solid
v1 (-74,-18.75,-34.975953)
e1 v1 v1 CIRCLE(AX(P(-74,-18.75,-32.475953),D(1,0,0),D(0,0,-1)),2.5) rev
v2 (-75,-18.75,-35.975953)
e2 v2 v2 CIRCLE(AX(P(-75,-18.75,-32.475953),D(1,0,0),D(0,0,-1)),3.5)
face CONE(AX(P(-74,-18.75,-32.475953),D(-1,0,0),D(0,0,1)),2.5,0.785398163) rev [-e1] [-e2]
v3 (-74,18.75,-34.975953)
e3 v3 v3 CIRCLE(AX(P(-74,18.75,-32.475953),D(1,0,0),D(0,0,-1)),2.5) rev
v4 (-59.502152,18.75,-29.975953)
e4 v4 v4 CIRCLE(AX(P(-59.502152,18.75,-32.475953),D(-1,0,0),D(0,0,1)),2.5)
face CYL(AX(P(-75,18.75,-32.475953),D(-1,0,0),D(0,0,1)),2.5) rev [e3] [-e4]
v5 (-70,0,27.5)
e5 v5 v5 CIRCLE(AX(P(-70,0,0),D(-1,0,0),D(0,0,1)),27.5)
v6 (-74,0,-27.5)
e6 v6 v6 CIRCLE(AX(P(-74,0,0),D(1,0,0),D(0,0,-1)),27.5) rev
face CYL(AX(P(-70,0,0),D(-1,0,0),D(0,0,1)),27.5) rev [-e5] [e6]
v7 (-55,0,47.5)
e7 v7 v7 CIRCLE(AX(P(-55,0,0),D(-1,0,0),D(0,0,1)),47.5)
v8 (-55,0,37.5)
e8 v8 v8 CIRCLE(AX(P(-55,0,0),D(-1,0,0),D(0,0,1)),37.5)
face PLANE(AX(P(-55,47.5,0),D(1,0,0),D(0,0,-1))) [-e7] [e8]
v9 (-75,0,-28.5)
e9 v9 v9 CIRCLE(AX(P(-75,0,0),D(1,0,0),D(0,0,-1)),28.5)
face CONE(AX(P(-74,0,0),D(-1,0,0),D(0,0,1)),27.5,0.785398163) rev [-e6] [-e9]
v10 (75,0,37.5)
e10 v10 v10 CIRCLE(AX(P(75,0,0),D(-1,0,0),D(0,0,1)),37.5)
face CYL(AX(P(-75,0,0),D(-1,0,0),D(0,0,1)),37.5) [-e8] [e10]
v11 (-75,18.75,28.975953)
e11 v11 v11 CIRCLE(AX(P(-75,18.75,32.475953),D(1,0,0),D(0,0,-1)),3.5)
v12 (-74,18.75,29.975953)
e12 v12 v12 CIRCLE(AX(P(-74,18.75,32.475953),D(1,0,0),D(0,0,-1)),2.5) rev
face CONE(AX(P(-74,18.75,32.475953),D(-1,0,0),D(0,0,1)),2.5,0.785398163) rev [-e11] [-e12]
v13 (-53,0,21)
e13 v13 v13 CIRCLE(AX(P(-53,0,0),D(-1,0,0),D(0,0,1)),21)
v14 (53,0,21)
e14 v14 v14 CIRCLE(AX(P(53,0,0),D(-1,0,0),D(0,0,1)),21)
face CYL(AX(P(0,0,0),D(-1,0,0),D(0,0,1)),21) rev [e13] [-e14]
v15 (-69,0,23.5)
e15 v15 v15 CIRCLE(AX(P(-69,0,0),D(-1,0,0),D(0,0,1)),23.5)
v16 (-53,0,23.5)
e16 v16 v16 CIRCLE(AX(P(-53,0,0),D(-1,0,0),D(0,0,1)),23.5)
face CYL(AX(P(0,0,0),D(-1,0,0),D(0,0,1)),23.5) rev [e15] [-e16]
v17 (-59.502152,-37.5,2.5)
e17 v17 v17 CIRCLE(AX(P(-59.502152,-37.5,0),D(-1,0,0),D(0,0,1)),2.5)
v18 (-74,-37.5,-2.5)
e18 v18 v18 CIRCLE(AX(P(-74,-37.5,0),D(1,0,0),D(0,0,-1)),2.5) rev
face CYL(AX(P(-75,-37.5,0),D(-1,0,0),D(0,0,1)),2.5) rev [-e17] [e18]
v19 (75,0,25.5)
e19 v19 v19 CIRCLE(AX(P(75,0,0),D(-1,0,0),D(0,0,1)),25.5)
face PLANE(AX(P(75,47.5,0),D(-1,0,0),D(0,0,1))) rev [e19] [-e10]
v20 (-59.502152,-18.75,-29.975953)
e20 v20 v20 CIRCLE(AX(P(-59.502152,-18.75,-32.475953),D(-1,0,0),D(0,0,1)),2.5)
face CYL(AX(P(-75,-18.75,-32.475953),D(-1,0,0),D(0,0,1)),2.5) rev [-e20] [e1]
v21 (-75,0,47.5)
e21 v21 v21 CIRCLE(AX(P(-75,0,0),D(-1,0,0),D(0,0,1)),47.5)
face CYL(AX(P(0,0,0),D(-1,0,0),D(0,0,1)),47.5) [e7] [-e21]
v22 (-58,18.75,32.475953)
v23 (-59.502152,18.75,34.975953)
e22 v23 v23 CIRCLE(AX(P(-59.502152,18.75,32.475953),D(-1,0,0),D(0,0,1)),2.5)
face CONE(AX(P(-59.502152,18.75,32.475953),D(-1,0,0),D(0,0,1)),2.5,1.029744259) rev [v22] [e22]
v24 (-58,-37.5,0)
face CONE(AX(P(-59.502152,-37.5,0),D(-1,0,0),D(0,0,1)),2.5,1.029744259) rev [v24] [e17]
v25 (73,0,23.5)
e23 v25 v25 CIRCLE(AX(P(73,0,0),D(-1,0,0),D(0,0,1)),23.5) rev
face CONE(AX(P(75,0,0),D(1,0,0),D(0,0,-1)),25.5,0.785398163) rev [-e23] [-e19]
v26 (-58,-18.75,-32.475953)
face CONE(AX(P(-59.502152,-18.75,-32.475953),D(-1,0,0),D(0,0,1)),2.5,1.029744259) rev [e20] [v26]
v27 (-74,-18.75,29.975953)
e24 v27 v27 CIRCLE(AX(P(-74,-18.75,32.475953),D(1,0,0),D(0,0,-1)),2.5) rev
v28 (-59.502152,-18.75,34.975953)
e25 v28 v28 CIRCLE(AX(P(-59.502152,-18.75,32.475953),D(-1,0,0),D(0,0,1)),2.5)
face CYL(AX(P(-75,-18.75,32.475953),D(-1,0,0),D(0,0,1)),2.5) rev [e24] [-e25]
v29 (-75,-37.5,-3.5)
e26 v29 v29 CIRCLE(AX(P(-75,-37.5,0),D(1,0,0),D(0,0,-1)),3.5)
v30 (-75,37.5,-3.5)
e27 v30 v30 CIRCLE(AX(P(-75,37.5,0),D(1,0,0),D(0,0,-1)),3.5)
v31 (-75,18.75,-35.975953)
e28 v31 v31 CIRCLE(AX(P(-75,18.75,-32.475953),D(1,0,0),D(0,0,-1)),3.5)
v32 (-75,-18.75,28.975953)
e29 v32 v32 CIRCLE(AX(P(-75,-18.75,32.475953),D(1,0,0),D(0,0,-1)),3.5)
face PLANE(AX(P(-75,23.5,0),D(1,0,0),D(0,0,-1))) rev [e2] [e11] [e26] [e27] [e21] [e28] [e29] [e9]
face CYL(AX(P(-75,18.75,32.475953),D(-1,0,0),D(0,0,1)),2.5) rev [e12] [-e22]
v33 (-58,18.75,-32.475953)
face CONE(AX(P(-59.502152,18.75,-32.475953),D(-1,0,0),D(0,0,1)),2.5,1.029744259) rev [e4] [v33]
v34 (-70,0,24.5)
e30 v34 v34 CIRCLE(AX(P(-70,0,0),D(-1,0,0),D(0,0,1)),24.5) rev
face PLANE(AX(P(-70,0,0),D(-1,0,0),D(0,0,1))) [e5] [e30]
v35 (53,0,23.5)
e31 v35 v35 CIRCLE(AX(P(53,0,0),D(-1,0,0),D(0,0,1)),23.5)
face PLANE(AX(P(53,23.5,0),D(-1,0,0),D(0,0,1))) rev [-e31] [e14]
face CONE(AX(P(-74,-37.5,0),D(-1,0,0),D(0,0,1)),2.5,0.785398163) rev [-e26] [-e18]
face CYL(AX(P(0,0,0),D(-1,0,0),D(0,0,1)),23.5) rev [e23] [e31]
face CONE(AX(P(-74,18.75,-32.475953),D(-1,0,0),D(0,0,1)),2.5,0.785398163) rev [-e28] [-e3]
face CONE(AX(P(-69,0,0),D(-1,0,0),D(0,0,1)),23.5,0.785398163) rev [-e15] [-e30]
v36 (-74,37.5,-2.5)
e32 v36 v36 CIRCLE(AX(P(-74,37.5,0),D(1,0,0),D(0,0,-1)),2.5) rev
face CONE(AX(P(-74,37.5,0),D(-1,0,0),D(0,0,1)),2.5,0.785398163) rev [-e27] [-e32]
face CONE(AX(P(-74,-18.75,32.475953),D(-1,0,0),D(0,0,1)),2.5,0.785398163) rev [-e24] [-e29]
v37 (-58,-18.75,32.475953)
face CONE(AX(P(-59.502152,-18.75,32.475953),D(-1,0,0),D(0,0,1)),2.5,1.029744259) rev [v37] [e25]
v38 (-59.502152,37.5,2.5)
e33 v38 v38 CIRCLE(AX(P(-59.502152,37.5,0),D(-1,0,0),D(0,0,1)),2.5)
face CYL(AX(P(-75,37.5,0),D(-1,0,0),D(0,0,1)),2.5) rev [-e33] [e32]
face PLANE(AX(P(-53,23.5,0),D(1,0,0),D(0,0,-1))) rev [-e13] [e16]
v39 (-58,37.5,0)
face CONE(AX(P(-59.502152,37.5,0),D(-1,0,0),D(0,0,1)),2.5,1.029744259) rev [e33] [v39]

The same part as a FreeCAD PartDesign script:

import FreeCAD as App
import Part
import Sketcher
from FreeCAD import Vector
Q = App.Units.Quantity


def edges_at(feature, points):
    """Names of the edges that pass closest to the given points."""
    edges = feature.Shape.Edges
    near = lambda p: min(range(len(edges)), key=lambda i: edges[i].distToShape(Part.Vertex(*p))[0])
    return sorted({f"Edge{near(p) + 1}" for p in points})

doc = App.newDocument("Part")
body = doc.addObject("PartDesign::Body", "Body")

# Sketch on XY plane
sketch1 = body.newObject("Sketcher::SketchObject", "Sketch")
sketch1.AttachmentSupport = (doc.getObject("XY_Plane"), [""])
sketch1.MapMode = "FlatFace"
sketch1.addGeometry(Part.LineSegment(Vector(-75, 47.5, 0), Vector(-75, 23.5, 0)), False)
sketch1.addGeometry(Part.LineSegment(Vector(-75, 23.5, 0), Vector(-53, 23.5, 0)), False)
sketch1.addGeometry(Part.LineSegment(Vector(-53, 23.5, 0), Vector(-53, 21, 0)), False)
sketch1.addGeometry(Part.LineSegment(Vector(-53, 21, 0), Vector(53, 21, 0)), False)
sketch1.addGeometry(Part.LineSegment(Vector(53, 21, 0), Vector(53, 23.5, 0)), False)
sketch1.addGeometry(Part.LineSegment(Vector(53, 23.5, 0), Vector(75, 23.5, 0)), False)
sketch1.addGeometry(Part.LineSegment(Vector(75, 23.5, 0), Vector(75, 47.5, 0)), False)
sketch1.addGeometry(Part.LineSegment(Vector(75, 47.5, 0), Vector(-75, 47.5, 0)), False)
sketch1.addConstraint(Sketcher.Constraint("Coincident", 0, 2, 1, 1))
sketch1.addConstraint(Sketcher.Constraint("Coincident", 1, 2, 2, 1))
sketch1.addConstraint(Sketcher.Constraint("Coincident", 2, 2, 3, 1))
sketch1.addConstraint(Sketcher.Constraint("Coincident", 3, 2, 4, 1))
sketch1.addConstraint(Sketcher.Constraint("Coincident", 4, 2, 5, 1))
sketch1.addConstraint(Sketcher.Constraint("Coincident", 5, 2, 6, 1))
sketch1.addConstraint(Sketcher.Constraint("Coincident", 6, 2, 7, 1))
sketch1.addConstraint(Sketcher.Constraint("Coincident", 7, 2, 0, 1))
sketch1.addConstraint(Sketcher.Constraint("Vertical", 0))
sketch1.addConstraint(Sketcher.Constraint("Horizontal", 1))
sketch1.addConstraint(Sketcher.Constraint("Vertical", 2))
sketch1.addConstraint(Sketcher.Constraint("Horizontal", 3))
sketch1.addConstraint(Sketcher.Constraint("Vertical", 4))
sketch1.addConstraint(Sketcher.Constraint("Horizontal", 5))
sketch1.addConstraint(Sketcher.Constraint("Vertical", 6))
sketch1.addConstraint(Sketcher.Constraint("Horizontal", 7))
sketch1.addConstraint(Sketcher.Constraint("Symmetric", 1, 2, 4, 2, -2))
sketch1.addConstraint(Sketcher.Constraint("Equal", 1, 5))
sketch1.addConstraint(Sketcher.Constraint("DistanceX", 1, 1, 1, 2, Q("22 mm")))
sketch1.addConstraint(Sketcher.Constraint("DistanceX", 3, 1, 3, 2, Q("106 mm")))
sketch1.addConstraint(Sketcher.Constraint("DistanceY", 0, 2, 0, 1, Q("24 mm")))
sketch1.addConstraint(Sketcher.Constraint("DistanceY", 2, 2, 2, 1, Q("2.5 mm")))
sketch1.addConstraint(Sketcher.Constraint("DistanceY", -1, 1, 2, 2, Q("21 mm")))
revolution = body.newObject("PartDesign::Revolution", "Revolution")
revolution.Profile = sketch1
revolution.ReferenceAxis = (sketch1, ["H_Axis"])
revolution.Angle = 360

# Sketch on XZ plane
sketch2 = body.newObject("Sketcher::SketchObject", "Sketch001")
sketch2.AttachmentSupport = (doc.getObject("XZ_Plane"), [""])
sketch2.MapMode = "FlatFace"
sketch2.AttachmentOffset = App.Placement(Vector(0, 0, -37.5), App.Rotation())
sketch2.addGeometry(Part.LineSegment(Vector(-58, 0, 0), Vector(-75, 0, 0)), False)
sketch2.addGeometry(Part.LineSegment(Vector(-75, 0, 0), Vector(-75, 2.5, 0)), False)
sketch2.addGeometry(Part.LineSegment(Vector(-75, 2.5, 0), Vector(-59.5, 2.5, 0)), False)
sketch2.addGeometry(Part.LineSegment(Vector(-59.5, 2.5, 0), Vector(-58, 0, 0)), False)
sketch2.addConstraint(Sketcher.Constraint("Coincident", 0, 2, 1, 1))
sketch2.addConstraint(Sketcher.Constraint("Coincident", 1, 2, 2, 1))
sketch2.addConstraint(Sketcher.Constraint("Coincident", 2, 2, 3, 1))
sketch2.addConstraint(Sketcher.Constraint("Coincident", 3, 2, 0, 1))
sketch2.addConstraint(Sketcher.Constraint("Horizontal", 0))
sketch2.addConstraint(Sketcher.Constraint("Vertical", 1))
sketch2.addConstraint(Sketcher.Constraint("Horizontal", 2))
sketch2.addConstraint(Sketcher.Constraint("PointOnObject", 0, 2, -1))
sketch2.addConstraint(Sketcher.Constraint("DistanceX", 0, 2, 0, 1, Q("17 mm")))
sketch2.addConstraint(Sketcher.Constraint("Angle", 3, Q("-59 deg")))
sketch2.addConstraint(Sketcher.Constraint("DistanceY", 1, 1, 1, 2, Q("2.5 mm")))
sketch2.addConstraint(Sketcher.Constraint("DistanceX", 0, 2, -1, 1, Q("75 mm")))
groove = body.newObject("PartDesign::Groove", "Groove")
groove.Profile = sketch2
groove.ReferenceAxis = (sketch2, ["H_Axis"])
groove.Angle = 360
doc.recompute()

polarpattern = body.newObject("PartDesign::PolarPattern", "PolarPattern")
polarpattern.Originals = [groove]
polarpattern.Axis = (doc.getObject("X_Axis"), [""])
polarpattern.Angle = 360
polarpattern.Occurrences = 6
body.Tip = polarpattern
doc.recompute()

chamfer = body.newObject("PartDesign::Chamfer", "Chamfer")
chamfer.Base = (polarpattern, edges_at(polarpattern, [
    (-75, 37.5, -2.5),
    (-75, 16.585, -33.726),
    (-75, -20.915, -31.226),
    (-75, -37.5, 2.5),
    (-75, -16.585, 33.726),
    (-75, 20.915, 31.226),
]))
chamfer.Size = 1
doc.recompute()

chamfer2 = body.newObject("PartDesign::Chamfer", "Chamfer001")
chamfer2.Base = (chamfer, edges_at(chamfer, [(75, 0, -23.5)]))
chamfer2.Size = 2

# Sketch on XY plane
sketch3 = body.newObject("Sketcher::SketchObject", "Sketch002")
sketch3.AttachmentSupport = (doc.getObject("XY_Plane"), [""])
sketch3.MapMode = "FlatFace"
sketch3.addGeometry(Part.LineSegment(Vector(-55, 48, 0), Vector(-55, 38, 0)), False)
sketch3.addGeometry(Part.LineSegment(Vector(-55, 38, 0), Vector(75, 38, 0)), False)
sketch3.addGeometry(Part.LineSegment(Vector(75, 38, 0), Vector(75, 48, 0)), False)
sketch3.addGeometry(Part.LineSegment(Vector(75, 48, 0), Vector(-55, 48, 0)), False)
sketch3.addConstraint(Sketcher.Constraint("Coincident", 0, 2, 1, 1))
sketch3.addConstraint(Sketcher.Constraint("Coincident", 1, 2, 2, 1))
sketch3.addConstraint(Sketcher.Constraint("Coincident", 2, 2, 3, 1))
sketch3.addConstraint(Sketcher.Constraint("Coincident", 3, 2, 0, 1))
sketch3.addConstraint(Sketcher.Constraint("Vertical", 0))
sketch3.addConstraint(Sketcher.Constraint("Horizontal", 1))
sketch3.addConstraint(Sketcher.Constraint("Vertical", 2))
sketch3.addConstraint(Sketcher.Constraint("Horizontal", 3))
sketch3.addConstraint(Sketcher.Constraint("DistanceX", 1, 1, 1, 2, Q("130 mm")))
sketch3.addConstraint(Sketcher.Constraint("DistanceY", 0, 2, 0, 1, Q("10 mm")))
sketch3.addConstraint(Sketcher.Constraint("DistanceX", 0, 2, -1, 1, Q("55 mm")))
sketch3.addConstraint(Sketcher.Constraint("DistanceY", -1, 1, 0, 2, Q("37.5 mm")))
groove2 = body.newObject("PartDesign::Groove", "Groove001")
groove2.Profile = sketch3
groove2.ReferenceAxis = (sketch3, ["H_Axis"])
groove2.Angle = 360

# Sketch on YZ plane
sketch4 = body.newObject("Sketcher::SketchObject", "Sketch003")
sketch4.AttachmentSupport = (doc.getObject("YZ_Plane"), [""])
sketch4.MapMode = "FlatFace"
sketch4.AttachmentOffset = App.Placement(Vector(0, 0, -75), App.Rotation())
sketch4.addGeometry(Part.Circle(Vector(0, 0, 0), Vector(0, 0, 1), 28), False)
sketch4.addGeometry(Part.Circle(Vector(0, 0, 0), Vector(0, 0, 1), 24), False)
sketch4.addConstraint(Sketcher.Constraint("Coincident", 0, 3, -1, 1))
sketch4.addConstraint(Sketcher.Constraint("Coincident", 1, 3, -1, 1))
sketch4.addConstraint(Sketcher.Constraint("Diameter", 0, Q("55 mm")))
sketch4.addConstraint(Sketcher.Constraint("Diameter", 1, Q("47 mm")))
pocket1 = body.newObject("PartDesign::Pocket", "Pocket")
pocket1.Profile = sketch4
pocket1.Length = 5
pocket1.Reversed = True
doc.recompute()

chamfer3 = body.newObject("PartDesign::Chamfer", "Chamfer002")
chamfer3.Base = (pocket1, edges_at(pocket1, [(-70, 0, -23.5), (-75, 0, -27.5)]))
chamfer3.Size = 1

doc.recompute()
